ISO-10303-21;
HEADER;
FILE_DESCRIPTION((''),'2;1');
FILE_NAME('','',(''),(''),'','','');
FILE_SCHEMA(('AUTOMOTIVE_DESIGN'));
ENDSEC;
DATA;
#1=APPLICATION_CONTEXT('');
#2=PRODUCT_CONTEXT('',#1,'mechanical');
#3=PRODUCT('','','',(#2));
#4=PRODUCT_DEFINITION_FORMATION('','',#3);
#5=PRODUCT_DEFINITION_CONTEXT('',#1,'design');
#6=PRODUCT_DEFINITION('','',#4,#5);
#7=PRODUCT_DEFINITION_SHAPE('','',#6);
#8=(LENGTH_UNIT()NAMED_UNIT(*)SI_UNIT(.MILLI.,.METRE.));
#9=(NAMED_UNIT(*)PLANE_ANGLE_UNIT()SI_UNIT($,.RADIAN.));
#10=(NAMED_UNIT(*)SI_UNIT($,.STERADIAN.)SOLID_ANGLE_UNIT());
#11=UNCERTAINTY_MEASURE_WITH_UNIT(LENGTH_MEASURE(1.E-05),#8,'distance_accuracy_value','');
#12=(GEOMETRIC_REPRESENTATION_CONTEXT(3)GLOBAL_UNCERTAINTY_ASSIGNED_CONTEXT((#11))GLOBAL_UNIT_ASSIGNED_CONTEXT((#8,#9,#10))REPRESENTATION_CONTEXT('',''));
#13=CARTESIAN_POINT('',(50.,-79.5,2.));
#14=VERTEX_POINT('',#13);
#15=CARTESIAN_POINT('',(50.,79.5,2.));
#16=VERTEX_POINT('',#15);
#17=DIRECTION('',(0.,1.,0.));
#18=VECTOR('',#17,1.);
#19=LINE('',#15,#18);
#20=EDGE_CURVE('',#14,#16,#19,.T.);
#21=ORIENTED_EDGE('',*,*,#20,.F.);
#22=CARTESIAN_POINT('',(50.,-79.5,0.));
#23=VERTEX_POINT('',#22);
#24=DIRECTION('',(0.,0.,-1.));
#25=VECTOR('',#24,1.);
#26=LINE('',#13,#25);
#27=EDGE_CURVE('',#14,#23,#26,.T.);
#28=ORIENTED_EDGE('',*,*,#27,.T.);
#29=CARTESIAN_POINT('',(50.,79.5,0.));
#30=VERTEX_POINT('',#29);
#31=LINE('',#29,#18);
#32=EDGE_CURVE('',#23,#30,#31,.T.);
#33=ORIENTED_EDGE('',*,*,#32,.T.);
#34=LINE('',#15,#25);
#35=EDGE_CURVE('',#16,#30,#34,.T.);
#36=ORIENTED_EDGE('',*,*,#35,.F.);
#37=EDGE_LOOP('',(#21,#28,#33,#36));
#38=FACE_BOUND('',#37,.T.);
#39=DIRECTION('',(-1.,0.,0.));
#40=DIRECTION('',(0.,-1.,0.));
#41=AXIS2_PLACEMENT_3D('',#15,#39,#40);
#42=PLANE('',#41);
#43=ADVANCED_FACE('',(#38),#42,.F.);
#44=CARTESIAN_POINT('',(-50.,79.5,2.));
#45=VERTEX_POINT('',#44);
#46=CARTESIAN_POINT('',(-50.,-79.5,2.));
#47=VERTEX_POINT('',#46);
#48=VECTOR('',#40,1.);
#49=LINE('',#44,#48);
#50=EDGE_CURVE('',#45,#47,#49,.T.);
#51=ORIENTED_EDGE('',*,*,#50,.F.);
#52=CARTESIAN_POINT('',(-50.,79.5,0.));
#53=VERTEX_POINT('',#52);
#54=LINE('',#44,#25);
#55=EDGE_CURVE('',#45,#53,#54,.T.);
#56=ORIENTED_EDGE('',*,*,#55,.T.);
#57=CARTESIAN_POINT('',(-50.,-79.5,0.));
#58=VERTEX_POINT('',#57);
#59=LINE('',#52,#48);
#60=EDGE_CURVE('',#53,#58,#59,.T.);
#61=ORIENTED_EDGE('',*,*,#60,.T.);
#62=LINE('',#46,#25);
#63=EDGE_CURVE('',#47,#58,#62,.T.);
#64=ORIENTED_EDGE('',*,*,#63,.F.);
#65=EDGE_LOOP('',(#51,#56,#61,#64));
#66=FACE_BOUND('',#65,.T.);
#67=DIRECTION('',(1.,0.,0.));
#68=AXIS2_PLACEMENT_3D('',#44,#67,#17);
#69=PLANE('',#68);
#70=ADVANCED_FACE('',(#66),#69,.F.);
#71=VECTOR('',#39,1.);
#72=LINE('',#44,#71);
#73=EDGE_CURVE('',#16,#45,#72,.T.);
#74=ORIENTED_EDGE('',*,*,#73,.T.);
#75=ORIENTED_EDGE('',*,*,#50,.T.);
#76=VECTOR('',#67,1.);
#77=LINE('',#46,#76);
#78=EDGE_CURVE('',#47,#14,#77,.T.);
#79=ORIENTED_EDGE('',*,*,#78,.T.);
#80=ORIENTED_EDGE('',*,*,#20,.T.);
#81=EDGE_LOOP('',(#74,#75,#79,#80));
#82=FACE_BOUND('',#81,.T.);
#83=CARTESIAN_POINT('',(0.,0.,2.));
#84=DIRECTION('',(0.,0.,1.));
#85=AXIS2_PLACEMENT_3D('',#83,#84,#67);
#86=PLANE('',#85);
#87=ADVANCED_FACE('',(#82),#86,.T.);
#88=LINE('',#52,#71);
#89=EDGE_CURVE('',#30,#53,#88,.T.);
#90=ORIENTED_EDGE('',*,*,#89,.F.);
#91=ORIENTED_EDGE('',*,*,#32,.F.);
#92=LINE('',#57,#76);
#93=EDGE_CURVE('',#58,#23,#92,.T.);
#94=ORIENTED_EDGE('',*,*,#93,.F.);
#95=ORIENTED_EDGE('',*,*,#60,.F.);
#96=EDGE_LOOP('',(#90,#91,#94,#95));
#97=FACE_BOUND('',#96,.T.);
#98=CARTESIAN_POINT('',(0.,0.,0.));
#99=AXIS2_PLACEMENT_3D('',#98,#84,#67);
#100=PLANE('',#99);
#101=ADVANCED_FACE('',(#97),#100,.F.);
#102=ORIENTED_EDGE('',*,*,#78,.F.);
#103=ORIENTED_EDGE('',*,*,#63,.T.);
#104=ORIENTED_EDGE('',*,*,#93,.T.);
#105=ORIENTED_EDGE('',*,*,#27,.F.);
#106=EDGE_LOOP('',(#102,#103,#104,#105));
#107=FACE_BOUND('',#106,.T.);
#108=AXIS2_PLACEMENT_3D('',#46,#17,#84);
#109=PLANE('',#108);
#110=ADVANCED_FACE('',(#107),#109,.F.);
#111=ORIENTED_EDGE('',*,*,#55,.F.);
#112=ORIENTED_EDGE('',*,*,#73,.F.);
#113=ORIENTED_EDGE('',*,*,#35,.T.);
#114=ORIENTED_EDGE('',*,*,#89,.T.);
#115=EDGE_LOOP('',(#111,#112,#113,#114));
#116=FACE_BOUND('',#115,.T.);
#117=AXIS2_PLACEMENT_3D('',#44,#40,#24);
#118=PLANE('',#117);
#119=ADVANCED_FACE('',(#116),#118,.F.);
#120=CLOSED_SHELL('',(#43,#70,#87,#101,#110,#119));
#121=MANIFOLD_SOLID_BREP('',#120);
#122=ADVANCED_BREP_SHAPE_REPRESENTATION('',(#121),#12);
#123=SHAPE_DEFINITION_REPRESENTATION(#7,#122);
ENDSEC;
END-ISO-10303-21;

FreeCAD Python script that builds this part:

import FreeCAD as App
import Part
import Sketcher
Q = App.Units.Quantity

doc = App.newDocument("Part")
body = doc.addObject("PartDesign::Body", "Body")

# Sketch on XY plane
sketch1 = body.newObject("Sketcher::SketchObject", "Sketch")
sketch1.AttachmentSupport = (doc.getObject("XY_Plane"), [""])
sketch1.MapMode = "FlatFace"
sketch1.addGeometry([
    Part.LineSegment(App.Vector(-50, 80, 0), App.Vector(-50, -80, 0)),
    Part.LineSegment(App.Vector(-50, -80, 0), App.Vector(50, -80, 0)),
    Part.LineSegment(App.Vector(50, -80, 0), App.Vector(50, 80, 0)),
    Part.LineSegment(App.Vector(50, 80, 0), App.Vector(-50, 80, 0)),
], False)
sketch1.addConstraint([
    Sketcher.Constraint("Coincident", 0, 2, 1, 1),
    Sketcher.Constraint("Coincident", 1, 2, 2, 1),
    Sketcher.Constraint("Coincident", 2, 2, 3, 1),
    Sketcher.Constraint("Coincident", 3, 2, 0, 1),
    Sketcher.Constraint("Vertical", 0),
    Sketcher.Constraint("Horizontal", 1),
    Sketcher.Constraint("Vertical", 2),
    Sketcher.Constraint("Horizontal", 3),
    Sketcher.Constraint("Symmetric", 0, 2, 2, 2, -1, 1),
    Sketcher.Constraint("DistanceX", 1, 1, 1, 2, Q("100 mm")),
    Sketcher.Constraint("DistanceY", 0, 2, 0, 1, Q("159 mm")),
])
pad1 = body.newObject("PartDesign::Pad", "Pad")
pad1.Profile = sketch1
pad1.Length = 2

doc.recompute()
